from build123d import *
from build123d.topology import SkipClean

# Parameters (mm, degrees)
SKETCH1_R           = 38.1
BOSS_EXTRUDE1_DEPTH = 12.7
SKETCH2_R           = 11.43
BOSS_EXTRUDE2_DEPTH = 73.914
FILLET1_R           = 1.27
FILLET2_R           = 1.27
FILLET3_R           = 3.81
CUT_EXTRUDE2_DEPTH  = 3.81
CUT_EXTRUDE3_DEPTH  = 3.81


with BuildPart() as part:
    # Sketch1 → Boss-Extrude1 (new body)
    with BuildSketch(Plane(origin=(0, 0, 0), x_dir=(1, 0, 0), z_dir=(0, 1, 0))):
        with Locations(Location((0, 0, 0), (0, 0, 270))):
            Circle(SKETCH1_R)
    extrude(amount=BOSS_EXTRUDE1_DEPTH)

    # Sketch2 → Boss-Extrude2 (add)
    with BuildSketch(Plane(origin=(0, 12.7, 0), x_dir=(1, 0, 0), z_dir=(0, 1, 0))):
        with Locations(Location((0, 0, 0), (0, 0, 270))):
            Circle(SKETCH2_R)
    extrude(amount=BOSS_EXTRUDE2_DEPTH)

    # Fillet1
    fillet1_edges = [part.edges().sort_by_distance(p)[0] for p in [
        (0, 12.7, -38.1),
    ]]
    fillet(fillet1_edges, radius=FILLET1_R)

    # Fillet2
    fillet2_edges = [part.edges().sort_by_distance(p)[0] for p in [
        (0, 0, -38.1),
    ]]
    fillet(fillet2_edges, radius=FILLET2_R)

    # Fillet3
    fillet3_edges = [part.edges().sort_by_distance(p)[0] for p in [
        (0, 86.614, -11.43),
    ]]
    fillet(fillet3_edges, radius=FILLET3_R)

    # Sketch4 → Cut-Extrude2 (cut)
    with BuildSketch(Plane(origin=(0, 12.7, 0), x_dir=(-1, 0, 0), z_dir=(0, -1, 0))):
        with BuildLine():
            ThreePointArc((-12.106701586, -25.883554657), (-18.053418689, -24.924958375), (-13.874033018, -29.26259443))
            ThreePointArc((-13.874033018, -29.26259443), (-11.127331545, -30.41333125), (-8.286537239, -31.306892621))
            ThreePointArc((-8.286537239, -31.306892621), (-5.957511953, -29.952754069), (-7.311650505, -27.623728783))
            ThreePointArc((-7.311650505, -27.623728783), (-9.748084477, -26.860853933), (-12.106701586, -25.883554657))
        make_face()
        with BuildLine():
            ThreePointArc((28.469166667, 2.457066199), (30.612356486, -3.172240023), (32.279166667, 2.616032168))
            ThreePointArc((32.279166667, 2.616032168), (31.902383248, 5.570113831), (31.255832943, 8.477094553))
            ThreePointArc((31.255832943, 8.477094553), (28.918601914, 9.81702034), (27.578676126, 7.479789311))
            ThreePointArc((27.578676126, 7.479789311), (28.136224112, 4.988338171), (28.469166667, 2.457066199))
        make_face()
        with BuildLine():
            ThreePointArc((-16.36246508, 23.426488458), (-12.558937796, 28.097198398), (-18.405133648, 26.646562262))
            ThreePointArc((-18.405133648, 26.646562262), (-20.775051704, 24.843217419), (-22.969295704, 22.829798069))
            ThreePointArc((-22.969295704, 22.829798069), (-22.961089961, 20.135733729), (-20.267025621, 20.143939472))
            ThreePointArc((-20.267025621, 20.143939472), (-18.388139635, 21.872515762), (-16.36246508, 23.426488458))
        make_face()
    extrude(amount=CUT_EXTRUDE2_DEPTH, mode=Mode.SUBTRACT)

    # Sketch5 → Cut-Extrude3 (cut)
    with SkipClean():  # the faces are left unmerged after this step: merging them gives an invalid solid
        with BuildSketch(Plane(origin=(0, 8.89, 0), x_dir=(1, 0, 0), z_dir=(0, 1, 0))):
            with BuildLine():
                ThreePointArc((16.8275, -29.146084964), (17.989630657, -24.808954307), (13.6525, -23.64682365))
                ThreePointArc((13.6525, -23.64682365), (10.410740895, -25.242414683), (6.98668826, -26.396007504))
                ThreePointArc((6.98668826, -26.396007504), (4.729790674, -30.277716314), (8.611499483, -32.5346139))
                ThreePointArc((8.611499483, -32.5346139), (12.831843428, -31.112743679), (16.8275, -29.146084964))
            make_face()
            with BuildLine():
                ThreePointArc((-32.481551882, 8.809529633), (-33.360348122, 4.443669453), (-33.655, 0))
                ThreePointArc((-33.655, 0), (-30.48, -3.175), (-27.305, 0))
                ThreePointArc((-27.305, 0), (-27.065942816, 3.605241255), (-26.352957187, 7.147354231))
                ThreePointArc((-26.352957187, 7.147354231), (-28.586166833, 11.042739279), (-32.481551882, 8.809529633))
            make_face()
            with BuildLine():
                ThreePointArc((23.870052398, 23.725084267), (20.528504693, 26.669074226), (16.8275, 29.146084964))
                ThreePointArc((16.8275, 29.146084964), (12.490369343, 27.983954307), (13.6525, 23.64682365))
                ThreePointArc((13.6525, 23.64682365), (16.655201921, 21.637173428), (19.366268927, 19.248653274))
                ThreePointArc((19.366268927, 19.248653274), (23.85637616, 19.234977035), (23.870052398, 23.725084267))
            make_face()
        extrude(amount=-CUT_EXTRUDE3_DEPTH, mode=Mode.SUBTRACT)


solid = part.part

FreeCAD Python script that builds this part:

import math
import FreeCAD as App
import Part
import Sketcher
from FreeCAD import Vector
Q = App.Units.Quantity


def edges_at(feature, points):
    """Names of the edges that pass closest to the given points."""
    edges = feature.Shape.Edges
    near = lambda p: min(range(len(edges)), key=lambda i: edges[i].distToShape(Part.Vertex(*p))[0])
    return sorted({f"Edge{near(p) + 1}" for p in points})

doc = App.newDocument("Part")
body = doc.addObject("PartDesign::Body", "Body")

# Sketch on XZ plane
sketch1 = body.newObject("Sketcher::SketchObject", "Sketch")
sketch1.AttachmentSupport = (doc.getObject("XZ_Plane"), [""])
sketch1.MapMode = "FlatFace"
sketch1.addGeometry(Part.Circle(Vector(0, 0, 0), Vector(0, 0, 1), 38.1), False)
sketch1.addConstraint(Sketcher.Constraint("Coincident", 0, 3, -1, 1))
sketch1.addConstraint(Sketcher.Constraint("Diameter", 0, Q("3 in")))
pad1 = body.newObject("PartDesign::Pad", "Pad")
pad1.Profile = sketch1
pad1.Length = Q("0.5 in")
pad1.Reversed = True

# Sketch on XZ plane
sketch2 = body.newObject("Sketcher::SketchObject", "Sketch001")
sketch2.AttachmentSupport = (doc.getObject("XZ_Plane"), [""])
sketch2.MapMode = "FlatFace"
sketch2.AttachmentOffset = App.Placement(Vector(0, 0, -0.5 * 25.4), App.Rotation())
sketch2.addGeometry(Part.Circle(Vector(0, 0, 0), Vector(0, 0, 1), 11.43), False)
sketch2.addConstraint(Sketcher.Constraint("Coincident", 0, 3, -1, 1))
sketch2.addConstraint(Sketcher.Constraint("Diameter", 0, Q("0.9 in")))
pad2 = body.newObject("PartDesign::Pad", "Pad001")
pad2.Profile = sketch2
pad2.Length = Q("2.91 in")
pad2.Reversed = True
doc.recompute()

fillet = body.newObject("PartDesign::Fillet", "Fillet")
fillet.Base = (pad2, edges_at(pad2, [(0, 12.7, -38.1)]))
fillet.Radius = Q("0.05 in")
doc.recompute()

fillet2 = body.newObject("PartDesign::Fillet", "Fillet001")
fillet2.Base = (fillet, edges_at(fillet, [(0, 0, -38.1)]))
fillet2.Radius = Q("0.05 in")
doc.recompute()

fillet3 = body.newObject("PartDesign::Fillet", "Fillet002")
fillet3.Base = (fillet2, edges_at(fillet2, [(0, 86.614, -11.43)]))
fillet3.Radius = Q("0.15 in")

# Sketch on XZ plane
sketch3 = body.newObject("Sketcher::SketchObject", "Sketch002")
sketch3.AttachmentSupport = (doc.getObject("XZ_Plane"), [""])
sketch3.MapMode = "FlatFace"
sketch3.AttachmentOffset = App.Placement(Vector(0, 0, -0.5 * 25.4), App.Rotation())
sketch3.addGeometry(Part.ArcOfCircle(Part.Circle(Vector(15.24, 26.396454, 0), Vector(0, 0, 1), 3.175), math.radians(-170.70352), math.radians(115.481892)), False)
sketch3.addGeometry(Part.ArcOfCircle(Part.Circle(Vector(0, 0, 0), Vector(0, 0, 1), 32.385), math.radians(64.633352), math.radians(75.174514)), False)
sketch3.addGeometry(Part.ArcOfCircle(Part.Circle(Vector(7.799094, 29.465311, 0), Vector(0, 0, 1), 1.905), math.radians(75.174514), math.radians(255.174514)), False)
sketch3.addGeometry(Part.ArcOfCircle(Part.Circle(Vector(0, 0, 0), Vector(0, 0, 1), 28.575), math.radians(64.932759), math.radians(75.174514)), False)
sketch3.addGeometry(Part.ArcOfCircle(Part.Circle(Vector(-30.48, 0, 0), Vector(0, 0, 1), 3.175), math.radians(-50.70352), math.radians(235.481892)), False)
sketch3.addGeometry(Part.ArcOfCircle(Part.Circle(Vector(0, 0, 0), Vector(0, 0, 1), 32.385), math.radians(-175.366648), math.radians(-164.825486)), False)
sketch3.addGeometry(Part.ArcOfCircle(Part.Circle(Vector(-29.417255, -7.978442, 0), Vector(0, 0, 1), 1.905), math.radians(-164.825486), math.radians(15.174514)), False)
sketch3.addGeometry(Part.ArcOfCircle(Part.Circle(Vector(0, 0, 0), Vector(0, 0, 1), 28.575), math.radians(-175.067241), math.radians(-164.825486)), False)
sketch3.addGeometry(Part.ArcOfCircle(Part.Circle(Vector(15.24, -26.396454, 0), Vector(0, 0, 1), 3.175), math.radians(69.29648), math.radians(355.481892)), False)
sketch3.addGeometry(Part.ArcOfCircle(Part.Circle(Vector(0, 0, 0), Vector(0, 0, 1), 32.385), math.radians(-55.366648), math.radians(-44.825486)), False)
sketch3.addGeometry(Part.ArcOfCircle(Part.Circle(Vector(21.618161, -21.486869, 0), Vector(0, 0, 1), 1.905), math.radians(-44.825486), math.radians(135.174514)), False)
sketch3.addGeometry(Part.ArcOfCircle(Part.Circle(Vector(0, 0, 0), Vector(0, 0, 1), 28.575), math.radians(-55.067241), math.radians(-44.825486)), False)
sketch3.addConstraint(Sketcher.Constraint("Coincident", 0, 2, 1, 1))
sketch3.addConstraint(Sketcher.Constraint("Tangent", 1, 2, 2, 1))
sketch3.addConstraint(Sketcher.Constraint("Tangent", 2, 2, 3, 2))
sketch3.addConstraint(Sketcher.Constraint("Coincident", 3, 1, 0, 1))
sketch3.addConstraint(Sketcher.Constraint("Coincident", 4, 2, 5, 1))
sketch3.addConstraint(Sketcher.Constraint("Tangent", 5, 2, 6, 1))
sketch3.addConstraint(Sketcher.Constraint("Tangent", 6, 2, 7, 2))
sketch3.addConstraint(Sketcher.Constraint("Coincident", 7, 1, 4, 1))
sketch3.addConstraint(Sketcher.Constraint("Coincident", 8, 2, 9, 1))
sketch3.addConstraint(Sketcher.Constraint("Tangent", 9, 2, 10, 1))
sketch3.addConstraint(Sketcher.Constraint("Tangent", 10, 2, 11, 2))
sketch3.addConstraint(Sketcher.Constraint("Coincident", 11, 1, 8, 1))
sketch3.addConstraint(Sketcher.Constraint("Coincident", 1, 3, -1, 1))
sketch3.addConstraint(Sketcher.Constraint("Coincident", 3, 3, -1, 1))
sketch3.addConstraint(Sketcher.Constraint("Coincident", 5, 3, -1, 1))
sketch3.addConstraint(Sketcher.Constraint("Coincident", 7, 3, -1, 1))
sketch3.addConstraint(Sketcher.Constraint("Coincident", 9, 3, -1, 1))
sketch3.addConstraint(Sketcher.Constraint("Coincident", 11, 3, -1, 1))
sketch3.addConstraint(Sketcher.Constraint("Equal", 0, 4))
sketch3.addConstraint(Sketcher.Constraint("Equal", 1, 5))
sketch3.addConstraint(Sketcher.Constraint("Equal", 2, 6))
sketch3.addConstraint(Sketcher.Constraint("Equal", 4, 8))
sketch3.addConstraint(Sketcher.Constraint("Equal", 5, 9))
sketch3.addConstraint(Sketcher.Constraint("Equal", 6, 10))
sketch3.addConstraint(Sketcher.Constraint("Symmetric", 0, 3, 8, 3, -1))
sketch3.addConstraint(Sketcher.Constraint("PointOnObject", 4, 3, -1))
sketch3.addConstraint(Sketcher.Constraint("Radius", 0, Q("0.125 in")))
sketch3.addConstraint(Sketcher.Constraint("Radius", 1, Q("1.275 in")))
sketch3.addConstraint(Sketcher.Constraint("Radius", 2, Q("0.075 in")))
sketch3.addConstraint(Sketcher.Constraint("DistanceX", -1, 1, 0, 3, Q("0.6 in")))
sketch3.addConstraint(Sketcher.Constraint("DistanceX", 4, 3, -1, 1, Q("1.2 in")))
sketch3.addConstraint(Sketcher.Constraint("DistanceX", 1, 2, 3, 1, Q("0.1504002 in")))
sketch3.addConstraint(Sketcher.Constraint("DistanceX", -1, 1, 3, 1, 12.106702))
sketch3.addConstraint(Sketcher.Constraint("DistanceY", 9, 2, -1, 1, 22.829798))
sketch3.addConstraint(Sketcher.Constraint("DistanceY", 6, 3, -1, 1, 7.978442))
pocket1 = body.newObject("PartDesign::Pocket", "Pocket")
pocket1.Profile = sketch3
pocket1.Length = Q("0.15 in")
pocket1.Reversed = True

# Sketch on XZ plane
sketch4 = body.newObject("Sketcher::SketchObject", "Sketch003")
sketch4.AttachmentSupport = (doc.getObject("XZ_Plane"), [""])
sketch4.MapMode = "FlatFace"
sketch4.AttachmentOffset = App.Placement(Vector(0, 0, -0.35 * 25.4), App.Rotation())
sketch4.addGeometry(Part.ArcOfCircle(Part.Circle(Vector(15.24, 26.396454, 0), Vector(0, 0, 1), 3.175), math.radians(-120), math.radians(60)), False)
sketch4.addGeometry(Part.ArcOfCircle(Part.Circle(Vector(0, 0, 0), Vector(0, 0, 1), 27.305), math.radians(60), math.radians(75.174514)), False)
sketch4.addGeometry(Part.ArcOfCircle(Part.Circle(Vector(7.799094, 29.465311, 0), Vector(0, 0, 1), 3.175), math.radians(75.174514), math.radians(255.174514)), False)
sketch4.addGeometry(Part.ArcOfCircle(Part.Circle(Vector(0, 0, 0), Vector(0, 0, 1), 33.655), math.radians(60), math.radians(75.174514)), False)
sketch4.addGeometry(Part.ArcOfCircle(Part.Circle(Vector(0, 0, 0), Vector(0, 0, 1), 33.655), math.radians(180), math.radians(195.174514)), False)
sketch4.addGeometry(Part.ArcOfCircle(Part.Circle(Vector(-30.48, 0, 0), Vector(0, 0, 1), 3.175), math.radians(0), math.radians(180)), False)
sketch4.addGeometry(Part.ArcOfCircle(Part.Circle(Vector(0, 0, 0), Vector(0, 0, 1), 27.305), math.radians(180), math.radians(195.174514)), False)
sketch4.addGeometry(Part.ArcOfCircle(Part.Circle(Vector(-29.417255, -7.978442, 0), Vector(0, 0, 1), 3.175), math.radians(-164.825486), math.radians(15.174514)), False)
sketch4.addGeometry(Part.ArcOfCircle(Part.Circle(Vector(0, 0, 0), Vector(0, 0, 1), 33.655), math.radians(-60), math.radians(-44.825486)), False)
sketch4.addGeometry(Part.ArcOfCircle(Part.Circle(Vector(15.24, -26.396454, 0), Vector(0, 0, 1), 3.175), math.radians(120), math.radians(300)), False)
sketch4.addGeometry(Part.ArcOfCircle(Part.Circle(Vector(0, 0, 0), Vector(0, 0, 1), 27.305), math.radians(-60), math.radians(-44.825486)), False)
sketch4.addGeometry(Part.ArcOfCircle(Part.Circle(Vector(21.618161, -21.486869, 0), Vector(0, 0, 1), 3.175), math.radians(-44.825486), math.radians(135.174514)), False)
sketch4.addConstraint(Sketcher.Constraint("Tangent", 0, 1, 1, 1))
sketch4.addConstraint(Sketcher.Constraint("Tangent", 1, 2, 2, 2))
sketch4.addConstraint(Sketcher.Constraint("Tangent", 2, 1, 3, 2))
sketch4.addConstraint(Sketcher.Constraint("Tangent", 3, 1, 0, 2))
sketch4.addConstraint(Sketcher.Constraint("Tangent", 4, 1, 5, 2))
sketch4.addConstraint(Sketcher.Constraint("Tangent", 5, 1, 6, 1))
sketch4.addConstraint(Sketcher.Constraint("Tangent", 6, 2, 7, 2))
sketch4.addConstraint(Sketcher.Constraint("Tangent", 7, 1, 4, 2))
sketch4.addConstraint(Sketcher.Constraint("Tangent", 8, 1, 9, 2))
sketch4.addConstraint(Sketcher.Constraint("Tangent", 9, 1, 10, 1))
sketch4.addConstraint(Sketcher.Constraint("Tangent", 10, 2, 11, 2))
sketch4.addConstraint(Sketcher.Constraint("Tangent", 11, 1, 8, 2))
sketch4.addConstraint(Sketcher.Constraint("Coincident", 1, 3, -1, 1))
sketch4.addConstraint(Sketcher.Constraint("Coincident", 3, 3, -1, 1))
sketch4.addConstraint(Sketcher.Constraint("Coincident", 4, 3, -1, 1))
sketch4.addConstraint(Sketcher.Constraint("Coincident", 6, 3, -1, 1))
sketch4.addConstraint(Sketcher.Constraint("Coincident", 8, 3, -1, 1))
sketch4.addConstraint(Sketcher.Constraint("Coincident", 10, 3, -1, 1))
sketch4.addConstraint(Sketcher.Constraint("Equal", 3, 4))
sketch4.addConstraint(Sketcher.Constraint("Equal", 2, 5))
sketch4.addConstraint(Sketcher.Constraint("Equal", 4, 8))
sketch4.addConstraint(Sketcher.Constraint("Equal", 7, 9))
sketch4.addConstraint(Sketcher.Constraint("PointOnObject", 5, 3, -1))
sketch4.addConstraint(Sketcher.Constraint("Vertical", 0, 3, 9, 3))
sketch4.addConstraint(Sketcher.Constraint("Radius", 0, Q("0.125 in")))
sketch4.addConstraint(Sketcher.Constraint("Radius", 1, Q("1.075 in")))
sketch4.addConstraint(Sketcher.Constraint("DistanceX", -1, 1, 0, 3, Q("0.6 in")))
sketch4.addConstraint(Sketcher.Constraint("DistanceX", -1, 1, 2, 1, 8.611499))
sketch4.addConstraint(Sketcher.Constraint("DistanceY", 9, 3, 10, 2, 7.147801))
sketch4.addConstraint(Sketcher.Constraint("DistanceY", 7, 3, -1, 1, 7.978442))
pocket2 = body.newObject("PartDesign::Pocket", "Pocket001")
pocket2.Profile = sketch4
pocket2.Length = Q("0.15 in")
pocket2.Reversed = True

doc.recompute()
